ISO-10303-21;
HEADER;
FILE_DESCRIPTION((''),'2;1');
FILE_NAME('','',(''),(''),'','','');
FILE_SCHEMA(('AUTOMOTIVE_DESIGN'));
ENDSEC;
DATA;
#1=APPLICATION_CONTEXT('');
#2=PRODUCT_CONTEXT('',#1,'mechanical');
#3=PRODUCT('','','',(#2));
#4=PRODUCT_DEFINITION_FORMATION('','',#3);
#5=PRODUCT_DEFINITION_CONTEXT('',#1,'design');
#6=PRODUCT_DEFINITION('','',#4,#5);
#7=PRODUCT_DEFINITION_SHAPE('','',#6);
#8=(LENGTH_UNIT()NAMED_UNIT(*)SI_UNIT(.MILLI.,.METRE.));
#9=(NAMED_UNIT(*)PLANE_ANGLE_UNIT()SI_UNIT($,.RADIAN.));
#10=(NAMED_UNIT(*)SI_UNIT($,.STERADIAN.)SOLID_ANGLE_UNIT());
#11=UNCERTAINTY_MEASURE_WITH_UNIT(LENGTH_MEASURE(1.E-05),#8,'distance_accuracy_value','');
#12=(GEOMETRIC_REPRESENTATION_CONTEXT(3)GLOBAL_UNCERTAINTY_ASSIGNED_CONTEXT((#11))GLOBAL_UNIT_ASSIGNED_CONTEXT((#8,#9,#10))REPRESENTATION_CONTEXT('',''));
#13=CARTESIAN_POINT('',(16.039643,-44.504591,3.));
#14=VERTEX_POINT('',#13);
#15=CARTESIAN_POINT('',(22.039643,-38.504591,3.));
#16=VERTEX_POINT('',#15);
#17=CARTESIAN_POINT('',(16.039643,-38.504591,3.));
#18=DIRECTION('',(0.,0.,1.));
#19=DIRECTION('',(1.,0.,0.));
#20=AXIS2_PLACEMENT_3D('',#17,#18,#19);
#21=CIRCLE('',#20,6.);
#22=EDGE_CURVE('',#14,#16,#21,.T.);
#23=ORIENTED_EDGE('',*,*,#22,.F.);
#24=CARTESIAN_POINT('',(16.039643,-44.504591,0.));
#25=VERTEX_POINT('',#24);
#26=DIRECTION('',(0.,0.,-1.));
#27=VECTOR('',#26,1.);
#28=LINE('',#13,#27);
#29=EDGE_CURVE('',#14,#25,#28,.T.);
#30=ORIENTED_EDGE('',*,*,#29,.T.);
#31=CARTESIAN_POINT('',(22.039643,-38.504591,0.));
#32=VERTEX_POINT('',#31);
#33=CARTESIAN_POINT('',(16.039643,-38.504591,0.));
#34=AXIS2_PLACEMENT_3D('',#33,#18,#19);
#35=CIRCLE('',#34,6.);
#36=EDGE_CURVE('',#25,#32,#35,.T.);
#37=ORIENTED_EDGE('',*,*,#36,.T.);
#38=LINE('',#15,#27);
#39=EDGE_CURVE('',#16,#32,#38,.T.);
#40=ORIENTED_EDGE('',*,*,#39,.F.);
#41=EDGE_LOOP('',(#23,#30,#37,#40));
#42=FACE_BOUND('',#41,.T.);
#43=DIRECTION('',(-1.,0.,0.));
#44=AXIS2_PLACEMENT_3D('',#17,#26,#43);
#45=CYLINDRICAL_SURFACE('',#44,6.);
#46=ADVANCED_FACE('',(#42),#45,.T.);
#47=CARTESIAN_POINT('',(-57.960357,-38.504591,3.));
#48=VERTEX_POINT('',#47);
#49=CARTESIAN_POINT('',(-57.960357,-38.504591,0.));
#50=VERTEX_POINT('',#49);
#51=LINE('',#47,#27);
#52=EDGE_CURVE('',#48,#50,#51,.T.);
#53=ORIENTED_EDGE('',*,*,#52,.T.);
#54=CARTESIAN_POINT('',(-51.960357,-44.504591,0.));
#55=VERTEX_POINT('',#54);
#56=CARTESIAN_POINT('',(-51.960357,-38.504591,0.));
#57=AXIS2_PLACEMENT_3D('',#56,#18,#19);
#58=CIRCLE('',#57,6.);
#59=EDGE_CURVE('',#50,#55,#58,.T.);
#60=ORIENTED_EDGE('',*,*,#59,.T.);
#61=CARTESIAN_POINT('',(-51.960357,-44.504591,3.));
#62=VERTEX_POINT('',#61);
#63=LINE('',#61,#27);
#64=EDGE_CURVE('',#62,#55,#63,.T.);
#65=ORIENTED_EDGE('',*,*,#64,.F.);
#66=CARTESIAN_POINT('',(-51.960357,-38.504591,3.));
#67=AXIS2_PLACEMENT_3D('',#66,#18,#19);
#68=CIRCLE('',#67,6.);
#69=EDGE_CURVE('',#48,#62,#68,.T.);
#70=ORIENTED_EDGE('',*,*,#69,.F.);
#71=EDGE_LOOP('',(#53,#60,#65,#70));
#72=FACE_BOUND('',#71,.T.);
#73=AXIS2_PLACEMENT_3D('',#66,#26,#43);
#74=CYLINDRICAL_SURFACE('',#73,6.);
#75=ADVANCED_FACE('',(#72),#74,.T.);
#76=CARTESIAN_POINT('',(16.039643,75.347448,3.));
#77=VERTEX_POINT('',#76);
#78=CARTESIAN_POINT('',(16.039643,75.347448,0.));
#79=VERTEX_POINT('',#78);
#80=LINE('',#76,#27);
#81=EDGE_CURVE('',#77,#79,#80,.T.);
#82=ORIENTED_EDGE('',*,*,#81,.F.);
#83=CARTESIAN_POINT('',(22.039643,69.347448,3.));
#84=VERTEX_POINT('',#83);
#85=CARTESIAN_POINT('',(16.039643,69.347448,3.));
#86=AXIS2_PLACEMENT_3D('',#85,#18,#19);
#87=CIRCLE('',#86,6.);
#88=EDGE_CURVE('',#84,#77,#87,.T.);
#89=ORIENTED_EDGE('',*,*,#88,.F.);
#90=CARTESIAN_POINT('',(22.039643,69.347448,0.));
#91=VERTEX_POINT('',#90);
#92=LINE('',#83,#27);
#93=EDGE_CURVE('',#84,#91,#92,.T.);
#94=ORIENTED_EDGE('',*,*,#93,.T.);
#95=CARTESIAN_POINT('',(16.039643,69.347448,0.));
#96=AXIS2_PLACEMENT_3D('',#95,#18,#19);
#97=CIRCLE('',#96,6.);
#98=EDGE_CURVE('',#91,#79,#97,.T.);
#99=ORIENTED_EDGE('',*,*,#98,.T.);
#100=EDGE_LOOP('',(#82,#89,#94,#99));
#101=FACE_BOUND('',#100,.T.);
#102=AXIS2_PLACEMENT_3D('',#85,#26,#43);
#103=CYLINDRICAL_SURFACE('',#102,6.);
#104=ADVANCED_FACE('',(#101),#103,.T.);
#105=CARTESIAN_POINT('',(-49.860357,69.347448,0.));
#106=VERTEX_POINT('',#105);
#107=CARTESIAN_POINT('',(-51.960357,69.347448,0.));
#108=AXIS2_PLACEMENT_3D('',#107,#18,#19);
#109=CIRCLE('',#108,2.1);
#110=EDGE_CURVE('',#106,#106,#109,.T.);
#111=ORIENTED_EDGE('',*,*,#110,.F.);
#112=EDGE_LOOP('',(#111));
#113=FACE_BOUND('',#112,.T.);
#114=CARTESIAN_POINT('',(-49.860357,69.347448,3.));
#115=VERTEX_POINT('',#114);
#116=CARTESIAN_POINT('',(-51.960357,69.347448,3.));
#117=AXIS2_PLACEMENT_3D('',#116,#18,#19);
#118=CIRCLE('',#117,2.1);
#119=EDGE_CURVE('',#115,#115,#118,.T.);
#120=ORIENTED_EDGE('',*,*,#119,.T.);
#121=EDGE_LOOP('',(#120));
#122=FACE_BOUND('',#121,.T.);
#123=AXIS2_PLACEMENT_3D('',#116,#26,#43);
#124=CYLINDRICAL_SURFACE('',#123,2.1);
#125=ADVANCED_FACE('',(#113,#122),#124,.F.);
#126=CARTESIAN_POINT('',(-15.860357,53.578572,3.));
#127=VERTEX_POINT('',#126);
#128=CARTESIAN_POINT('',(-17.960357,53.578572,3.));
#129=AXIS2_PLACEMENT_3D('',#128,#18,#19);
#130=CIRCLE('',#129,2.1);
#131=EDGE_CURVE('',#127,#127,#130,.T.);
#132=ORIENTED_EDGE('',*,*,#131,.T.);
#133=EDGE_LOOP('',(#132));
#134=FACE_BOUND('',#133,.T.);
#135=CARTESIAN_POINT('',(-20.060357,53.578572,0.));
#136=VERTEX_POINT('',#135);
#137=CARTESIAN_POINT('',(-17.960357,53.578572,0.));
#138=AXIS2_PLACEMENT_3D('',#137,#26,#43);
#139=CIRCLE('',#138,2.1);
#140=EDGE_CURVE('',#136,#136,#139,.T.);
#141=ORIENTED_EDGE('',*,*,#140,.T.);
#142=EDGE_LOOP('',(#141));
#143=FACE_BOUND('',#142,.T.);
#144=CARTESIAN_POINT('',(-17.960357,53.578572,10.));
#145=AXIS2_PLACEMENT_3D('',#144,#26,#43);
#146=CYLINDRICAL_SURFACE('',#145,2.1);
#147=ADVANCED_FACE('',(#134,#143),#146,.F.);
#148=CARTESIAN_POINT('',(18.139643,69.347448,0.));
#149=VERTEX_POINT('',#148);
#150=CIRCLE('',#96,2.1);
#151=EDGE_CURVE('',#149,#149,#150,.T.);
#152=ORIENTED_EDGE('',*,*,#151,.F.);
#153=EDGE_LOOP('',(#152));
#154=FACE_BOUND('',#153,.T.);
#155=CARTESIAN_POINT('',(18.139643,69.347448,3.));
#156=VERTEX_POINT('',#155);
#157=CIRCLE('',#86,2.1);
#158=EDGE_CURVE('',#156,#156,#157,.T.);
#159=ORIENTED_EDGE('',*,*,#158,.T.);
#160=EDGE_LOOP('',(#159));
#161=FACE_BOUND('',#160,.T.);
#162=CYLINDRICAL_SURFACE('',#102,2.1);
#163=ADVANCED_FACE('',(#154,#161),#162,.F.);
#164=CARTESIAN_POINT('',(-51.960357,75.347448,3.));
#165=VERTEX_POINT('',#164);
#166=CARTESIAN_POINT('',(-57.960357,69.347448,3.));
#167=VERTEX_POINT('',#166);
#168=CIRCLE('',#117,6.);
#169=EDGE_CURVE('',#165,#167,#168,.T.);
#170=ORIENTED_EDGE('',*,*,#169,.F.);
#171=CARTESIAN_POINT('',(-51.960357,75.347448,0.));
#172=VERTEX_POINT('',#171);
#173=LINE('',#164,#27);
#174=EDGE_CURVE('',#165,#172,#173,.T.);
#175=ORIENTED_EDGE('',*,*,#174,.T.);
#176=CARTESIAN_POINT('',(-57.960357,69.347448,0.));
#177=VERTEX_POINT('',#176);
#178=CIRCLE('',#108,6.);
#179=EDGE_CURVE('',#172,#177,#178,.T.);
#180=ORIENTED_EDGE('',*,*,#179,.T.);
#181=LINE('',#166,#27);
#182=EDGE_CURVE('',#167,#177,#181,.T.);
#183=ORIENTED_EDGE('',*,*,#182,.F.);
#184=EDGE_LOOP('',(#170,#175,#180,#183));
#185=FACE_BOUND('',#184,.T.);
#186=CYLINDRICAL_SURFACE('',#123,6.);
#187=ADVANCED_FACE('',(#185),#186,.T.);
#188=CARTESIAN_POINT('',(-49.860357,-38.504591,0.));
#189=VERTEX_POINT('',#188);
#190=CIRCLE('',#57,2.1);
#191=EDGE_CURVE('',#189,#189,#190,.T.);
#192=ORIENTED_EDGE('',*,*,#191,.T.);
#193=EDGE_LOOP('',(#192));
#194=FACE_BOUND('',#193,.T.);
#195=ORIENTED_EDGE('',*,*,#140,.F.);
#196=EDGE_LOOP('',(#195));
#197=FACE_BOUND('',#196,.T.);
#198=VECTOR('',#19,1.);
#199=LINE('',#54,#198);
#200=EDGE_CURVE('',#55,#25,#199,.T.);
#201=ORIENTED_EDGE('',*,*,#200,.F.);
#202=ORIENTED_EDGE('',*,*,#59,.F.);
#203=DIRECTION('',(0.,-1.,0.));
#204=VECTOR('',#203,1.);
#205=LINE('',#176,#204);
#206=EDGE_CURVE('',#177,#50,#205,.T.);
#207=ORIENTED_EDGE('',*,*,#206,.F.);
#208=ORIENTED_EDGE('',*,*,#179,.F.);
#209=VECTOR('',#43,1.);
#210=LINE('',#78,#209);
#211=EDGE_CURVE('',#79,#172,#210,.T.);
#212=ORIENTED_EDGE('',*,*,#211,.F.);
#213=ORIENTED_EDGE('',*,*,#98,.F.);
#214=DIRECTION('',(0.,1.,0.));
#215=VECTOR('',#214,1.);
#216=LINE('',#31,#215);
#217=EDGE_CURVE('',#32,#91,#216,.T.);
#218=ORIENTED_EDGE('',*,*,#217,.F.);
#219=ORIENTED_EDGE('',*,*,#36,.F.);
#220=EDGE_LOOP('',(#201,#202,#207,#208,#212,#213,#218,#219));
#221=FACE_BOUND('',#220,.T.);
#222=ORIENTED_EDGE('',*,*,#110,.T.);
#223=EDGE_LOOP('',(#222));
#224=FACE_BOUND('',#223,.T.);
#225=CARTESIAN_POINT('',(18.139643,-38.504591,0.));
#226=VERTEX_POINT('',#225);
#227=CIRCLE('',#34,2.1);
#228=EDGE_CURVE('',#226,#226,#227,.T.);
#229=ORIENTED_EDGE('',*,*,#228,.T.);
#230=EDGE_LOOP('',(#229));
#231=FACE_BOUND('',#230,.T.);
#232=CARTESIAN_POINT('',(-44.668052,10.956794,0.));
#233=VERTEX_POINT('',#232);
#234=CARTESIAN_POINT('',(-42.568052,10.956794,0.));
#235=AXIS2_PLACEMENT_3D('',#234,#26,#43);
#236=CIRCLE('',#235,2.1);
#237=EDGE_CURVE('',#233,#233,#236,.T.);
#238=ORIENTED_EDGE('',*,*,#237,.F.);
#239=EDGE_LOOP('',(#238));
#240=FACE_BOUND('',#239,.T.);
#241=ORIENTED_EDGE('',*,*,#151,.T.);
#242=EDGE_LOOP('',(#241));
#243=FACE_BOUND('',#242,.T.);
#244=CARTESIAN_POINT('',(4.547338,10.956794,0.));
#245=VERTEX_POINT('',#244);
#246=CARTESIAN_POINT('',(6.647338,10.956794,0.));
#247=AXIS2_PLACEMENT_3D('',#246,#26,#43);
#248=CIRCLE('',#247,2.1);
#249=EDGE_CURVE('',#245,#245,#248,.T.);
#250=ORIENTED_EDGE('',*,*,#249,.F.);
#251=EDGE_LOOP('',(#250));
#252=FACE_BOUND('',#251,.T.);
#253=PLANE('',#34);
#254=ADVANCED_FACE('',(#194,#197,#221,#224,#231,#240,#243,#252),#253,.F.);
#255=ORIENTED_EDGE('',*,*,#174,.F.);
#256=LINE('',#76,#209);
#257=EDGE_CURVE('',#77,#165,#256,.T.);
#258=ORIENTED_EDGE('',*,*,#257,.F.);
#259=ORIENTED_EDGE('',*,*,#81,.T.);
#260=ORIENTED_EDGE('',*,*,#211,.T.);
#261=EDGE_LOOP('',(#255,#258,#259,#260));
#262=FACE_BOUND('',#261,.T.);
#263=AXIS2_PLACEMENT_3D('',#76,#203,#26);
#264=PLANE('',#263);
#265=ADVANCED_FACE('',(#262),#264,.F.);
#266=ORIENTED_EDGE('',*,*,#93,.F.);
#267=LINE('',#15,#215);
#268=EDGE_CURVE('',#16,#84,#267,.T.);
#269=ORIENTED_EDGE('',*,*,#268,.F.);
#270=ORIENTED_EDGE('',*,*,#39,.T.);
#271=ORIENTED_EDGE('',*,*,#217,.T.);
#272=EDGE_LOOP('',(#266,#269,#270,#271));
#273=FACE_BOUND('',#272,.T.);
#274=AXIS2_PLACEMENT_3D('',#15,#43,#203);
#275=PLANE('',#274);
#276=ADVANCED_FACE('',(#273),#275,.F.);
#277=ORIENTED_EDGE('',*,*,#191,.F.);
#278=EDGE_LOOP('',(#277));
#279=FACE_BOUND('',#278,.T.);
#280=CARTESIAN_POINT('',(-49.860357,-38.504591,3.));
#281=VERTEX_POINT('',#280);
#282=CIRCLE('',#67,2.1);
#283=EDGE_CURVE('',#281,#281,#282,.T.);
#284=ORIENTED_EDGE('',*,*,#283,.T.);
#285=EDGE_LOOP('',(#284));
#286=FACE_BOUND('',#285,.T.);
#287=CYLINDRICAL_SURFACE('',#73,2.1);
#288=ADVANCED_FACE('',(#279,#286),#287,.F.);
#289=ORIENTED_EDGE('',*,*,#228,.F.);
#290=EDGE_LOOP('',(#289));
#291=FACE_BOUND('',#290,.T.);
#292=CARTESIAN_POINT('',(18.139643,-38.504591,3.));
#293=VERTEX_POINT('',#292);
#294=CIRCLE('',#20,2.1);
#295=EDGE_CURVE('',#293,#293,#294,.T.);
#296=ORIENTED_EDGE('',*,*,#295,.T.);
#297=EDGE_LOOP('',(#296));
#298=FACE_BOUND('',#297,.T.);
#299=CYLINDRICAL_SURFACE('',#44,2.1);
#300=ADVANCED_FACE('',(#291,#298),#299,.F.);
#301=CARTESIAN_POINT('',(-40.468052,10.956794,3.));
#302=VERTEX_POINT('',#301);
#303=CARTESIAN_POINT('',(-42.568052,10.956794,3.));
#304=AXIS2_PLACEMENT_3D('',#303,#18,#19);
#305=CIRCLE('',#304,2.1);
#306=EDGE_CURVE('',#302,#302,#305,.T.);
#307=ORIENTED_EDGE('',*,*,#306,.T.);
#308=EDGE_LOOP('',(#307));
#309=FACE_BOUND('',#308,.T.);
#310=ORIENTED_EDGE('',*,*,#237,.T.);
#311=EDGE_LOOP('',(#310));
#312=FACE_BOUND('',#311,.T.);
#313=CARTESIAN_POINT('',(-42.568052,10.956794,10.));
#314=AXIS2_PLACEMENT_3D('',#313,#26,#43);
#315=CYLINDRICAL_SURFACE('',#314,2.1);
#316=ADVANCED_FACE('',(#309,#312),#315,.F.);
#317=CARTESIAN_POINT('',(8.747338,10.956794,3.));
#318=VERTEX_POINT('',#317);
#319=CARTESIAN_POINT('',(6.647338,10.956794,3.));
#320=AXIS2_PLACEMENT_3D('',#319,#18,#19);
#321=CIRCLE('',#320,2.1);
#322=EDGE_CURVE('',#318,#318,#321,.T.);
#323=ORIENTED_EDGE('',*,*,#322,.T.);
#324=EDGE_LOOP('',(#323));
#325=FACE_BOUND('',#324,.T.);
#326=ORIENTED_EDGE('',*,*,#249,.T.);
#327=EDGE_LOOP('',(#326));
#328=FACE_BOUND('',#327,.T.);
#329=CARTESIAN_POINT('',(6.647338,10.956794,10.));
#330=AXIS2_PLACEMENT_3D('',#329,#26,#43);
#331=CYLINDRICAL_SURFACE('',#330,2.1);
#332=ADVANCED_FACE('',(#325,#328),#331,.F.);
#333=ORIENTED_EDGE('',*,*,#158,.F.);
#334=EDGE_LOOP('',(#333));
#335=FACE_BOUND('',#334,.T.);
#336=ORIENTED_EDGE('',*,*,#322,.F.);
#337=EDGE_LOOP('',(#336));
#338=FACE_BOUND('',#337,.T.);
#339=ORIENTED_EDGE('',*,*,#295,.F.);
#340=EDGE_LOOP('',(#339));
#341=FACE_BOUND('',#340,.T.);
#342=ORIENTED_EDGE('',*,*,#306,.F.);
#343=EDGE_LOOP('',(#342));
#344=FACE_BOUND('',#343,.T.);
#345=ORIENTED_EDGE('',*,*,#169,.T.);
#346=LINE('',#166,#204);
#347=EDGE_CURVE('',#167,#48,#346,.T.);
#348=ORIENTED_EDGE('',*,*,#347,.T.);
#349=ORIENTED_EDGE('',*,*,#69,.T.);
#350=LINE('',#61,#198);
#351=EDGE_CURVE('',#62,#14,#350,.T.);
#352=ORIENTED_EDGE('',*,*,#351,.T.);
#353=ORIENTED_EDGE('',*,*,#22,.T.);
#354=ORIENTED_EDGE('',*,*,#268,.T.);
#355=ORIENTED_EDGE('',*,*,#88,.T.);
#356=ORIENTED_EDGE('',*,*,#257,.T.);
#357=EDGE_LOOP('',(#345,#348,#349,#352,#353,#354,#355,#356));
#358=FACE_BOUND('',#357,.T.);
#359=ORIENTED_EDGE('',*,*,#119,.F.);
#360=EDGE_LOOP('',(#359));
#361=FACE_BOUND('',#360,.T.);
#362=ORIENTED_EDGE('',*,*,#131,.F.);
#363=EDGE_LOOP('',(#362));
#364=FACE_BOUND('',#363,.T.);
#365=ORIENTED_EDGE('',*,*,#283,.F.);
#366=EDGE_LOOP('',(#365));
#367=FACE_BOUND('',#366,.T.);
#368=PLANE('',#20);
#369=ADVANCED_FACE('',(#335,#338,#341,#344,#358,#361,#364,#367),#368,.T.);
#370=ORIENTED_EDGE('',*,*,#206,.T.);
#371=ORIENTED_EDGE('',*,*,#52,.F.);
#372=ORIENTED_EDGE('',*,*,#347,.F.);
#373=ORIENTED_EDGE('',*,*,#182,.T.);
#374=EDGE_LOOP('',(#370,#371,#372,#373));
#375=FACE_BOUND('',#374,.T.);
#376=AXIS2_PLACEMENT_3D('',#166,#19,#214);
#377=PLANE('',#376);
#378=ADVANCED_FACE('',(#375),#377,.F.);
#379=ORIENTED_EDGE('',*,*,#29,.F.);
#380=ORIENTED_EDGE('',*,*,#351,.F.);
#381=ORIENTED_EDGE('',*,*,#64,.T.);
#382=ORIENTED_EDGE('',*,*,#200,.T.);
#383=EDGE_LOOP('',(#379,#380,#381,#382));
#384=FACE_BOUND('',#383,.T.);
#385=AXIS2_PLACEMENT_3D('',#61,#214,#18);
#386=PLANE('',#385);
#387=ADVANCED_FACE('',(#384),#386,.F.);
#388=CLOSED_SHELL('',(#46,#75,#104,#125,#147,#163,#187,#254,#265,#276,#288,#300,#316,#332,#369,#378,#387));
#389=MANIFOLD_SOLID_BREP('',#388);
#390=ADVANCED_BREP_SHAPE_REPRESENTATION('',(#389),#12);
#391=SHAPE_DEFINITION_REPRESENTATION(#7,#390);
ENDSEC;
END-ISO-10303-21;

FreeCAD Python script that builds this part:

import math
import FreeCAD as App
import Part
import Sketcher

V = App.Vector
Q = App.Units.Quantity

doc = App.newDocument("Part")
body = doc.addObject("PartDesign::Body", "Body")

sketch1 = body.newObject("Sketcher::SketchObject", "Sketch")
sketch1.AttachmentSupport = (doc.getObject("XY_Plane"), [""])
sketch1.MapMode = "FlatFace"
sketch1.addGeometry([
    Part.LineSegment(V(22, -38.5, 0), V(22, 69.3, 0)),
    Part.ArcOfCircle(Part.Circle(V(16, 69.3, 0), V(0, 0, 1), 6), math.radians(0), math.radians(90)),
    Part.LineSegment(V(16, 75.3, 0), V(-52, 75.3, 0)),
    Part.ArcOfCircle(Part.Circle(V(-52, 69.3, 0), V(0, 0, 1), 6), math.radians(90), math.radians(180)),
    Part.LineSegment(V(-58, 69.3, 0), V(-58, -38.5, 0)),
    Part.ArcOfCircle(Part.Circle(V(-52, -38.5, 0), V(0, 0, 1), 6), math.radians(180), math.radians(270)),
    Part.LineSegment(V(-52, -44.5, 0), V(16, -44.5, 0)),
    Part.ArcOfCircle(Part.Circle(V(16, -38.5, 0), V(0, 0, 1), 6), math.radians(-90), math.radians(0)),
    Part.Circle(V(-52, -38.5, 0), V(0, 0, 1), 2.1),
    Part.Circle(V(16, -38.5, 0), V(0, 0, 1), 2.1),
    Part.Circle(V(-52, 69.3, 0), V(0, 0, 1), 2.1),
    Part.Circle(V(16, 69.3, 0), V(0, 0, 1), 2.1),
], False)
sketch1.addConstraint([
    Sketcher.Constraint("Tangent", 0, 2, 1, 1),
    Sketcher.Constraint("Tangent", 1, 2, 2, 1),
    Sketcher.Constraint("Tangent", 2, 2, 3, 1),
    Sketcher.Constraint("Tangent", 3, 2, 4, 1),
    Sketcher.Constraint("Tangent", 4, 2, 5, 1),
    Sketcher.Constraint("Tangent", 5, 2, 6, 1),
    Sketcher.Constraint("Tangent", 6, 2, 7, 1),
    Sketcher.Constraint("Tangent", 7, 2, 0, 1),
    Sketcher.Constraint("Vertical", 0),
    Sketcher.Constraint("Horizontal", 2),
    Sketcher.Constraint("Vertical", 4),
    Sketcher.Constraint("Horizontal", 6),
    Sketcher.Constraint("Coincident", 8, 3, 5, 3),
    Sketcher.Constraint("Coincident", 9, 3, 7, 3),
    Sketcher.Constraint("Coincident", 10, 3, 3, 3),
    Sketcher.Constraint("Coincident", 11, 3, 1, 3),
    Sketcher.Constraint("Equal", 1, 3),
    Sketcher.Constraint("Equal", 3, 5),
    Sketcher.Constraint("Equal", 5, 7),
    Sketcher.Constraint("Equal", 8, 9),
    Sketcher.Constraint("Equal", 9, 10),
    Sketcher.Constraint("Equal", 10, 11),
    Sketcher.Constraint("Radius", 1, Q("6 mm")),
    Sketcher.Constraint("Diameter", 8, Q("4.2 mm")),
    Sketcher.Constraint("DistanceX", 2, 2, 2, 1, Q("68 mm")),
    Sketcher.Constraint("DistanceY", 0, 1, 0, 2, Q("107.852039 mm")),
    Sketcher.Constraint("DistanceY", -1, 1, 1, 3, Q("69.347448 mm")),
    Sketcher.Constraint("DistanceX", -1, 1, 1, 3, Q("16.039643 mm")),
])
pad1 = body.newObject("PartDesign::Pad", "Pad")
pad1.Profile = sketch1
pad1.Length = 3

sketch2 = body.newObject("Sketcher::SketchObject", "Sketch001")
sketch2.AttachmentSupport = (doc.getObject("XY_Plane"), [""])
sketch2.MapMode = "FlatFace"
sketch2.addGeometry([
    Part.Circle(V(-18, 53.6, 0), V(0, 0, 1), 2.1),
    Part.Circle(V(-42.6, 11, 0), V(0, 0, 1), 2.1),
    Part.Circle(V(6.6, 11, 0), V(0, 0, 1), 2.1),
], False)
sketch2.addConstraint([
    Sketcher.Constraint("Equal", 0, 1),
    Sketcher.Constraint("Equal", 1, 2),
    Sketcher.Constraint("Horizontal", 1, 3, 2, 3),
    Sketcher.Constraint("Diameter", 0, Q("4.2 mm")),
    Sketcher.Constraint("DistanceX", -1, 1, 2, 3, Q("6.647338 mm")),
    Sketcher.Constraint("DistanceY", 1, 3, 0, 3, Q("42.621778 mm")),
    Sketcher.Constraint("DistanceX", 1, 3, 2, 3, Q("49.21539 mm")),
    Sketcher.Constraint("DistanceX", 0, 3, -1, 1, Q("17.960357 mm")),
    Sketcher.Constraint("DistanceY", -1, 1, 0, 3, Q("53.578572 mm")),
])
pocket1 = body.newObject("PartDesign::Pocket", "Pocket")
pocket1.Profile = sketch2
pocket1.Length = 10
pocket1.Reversed = True

doc.recompute()
